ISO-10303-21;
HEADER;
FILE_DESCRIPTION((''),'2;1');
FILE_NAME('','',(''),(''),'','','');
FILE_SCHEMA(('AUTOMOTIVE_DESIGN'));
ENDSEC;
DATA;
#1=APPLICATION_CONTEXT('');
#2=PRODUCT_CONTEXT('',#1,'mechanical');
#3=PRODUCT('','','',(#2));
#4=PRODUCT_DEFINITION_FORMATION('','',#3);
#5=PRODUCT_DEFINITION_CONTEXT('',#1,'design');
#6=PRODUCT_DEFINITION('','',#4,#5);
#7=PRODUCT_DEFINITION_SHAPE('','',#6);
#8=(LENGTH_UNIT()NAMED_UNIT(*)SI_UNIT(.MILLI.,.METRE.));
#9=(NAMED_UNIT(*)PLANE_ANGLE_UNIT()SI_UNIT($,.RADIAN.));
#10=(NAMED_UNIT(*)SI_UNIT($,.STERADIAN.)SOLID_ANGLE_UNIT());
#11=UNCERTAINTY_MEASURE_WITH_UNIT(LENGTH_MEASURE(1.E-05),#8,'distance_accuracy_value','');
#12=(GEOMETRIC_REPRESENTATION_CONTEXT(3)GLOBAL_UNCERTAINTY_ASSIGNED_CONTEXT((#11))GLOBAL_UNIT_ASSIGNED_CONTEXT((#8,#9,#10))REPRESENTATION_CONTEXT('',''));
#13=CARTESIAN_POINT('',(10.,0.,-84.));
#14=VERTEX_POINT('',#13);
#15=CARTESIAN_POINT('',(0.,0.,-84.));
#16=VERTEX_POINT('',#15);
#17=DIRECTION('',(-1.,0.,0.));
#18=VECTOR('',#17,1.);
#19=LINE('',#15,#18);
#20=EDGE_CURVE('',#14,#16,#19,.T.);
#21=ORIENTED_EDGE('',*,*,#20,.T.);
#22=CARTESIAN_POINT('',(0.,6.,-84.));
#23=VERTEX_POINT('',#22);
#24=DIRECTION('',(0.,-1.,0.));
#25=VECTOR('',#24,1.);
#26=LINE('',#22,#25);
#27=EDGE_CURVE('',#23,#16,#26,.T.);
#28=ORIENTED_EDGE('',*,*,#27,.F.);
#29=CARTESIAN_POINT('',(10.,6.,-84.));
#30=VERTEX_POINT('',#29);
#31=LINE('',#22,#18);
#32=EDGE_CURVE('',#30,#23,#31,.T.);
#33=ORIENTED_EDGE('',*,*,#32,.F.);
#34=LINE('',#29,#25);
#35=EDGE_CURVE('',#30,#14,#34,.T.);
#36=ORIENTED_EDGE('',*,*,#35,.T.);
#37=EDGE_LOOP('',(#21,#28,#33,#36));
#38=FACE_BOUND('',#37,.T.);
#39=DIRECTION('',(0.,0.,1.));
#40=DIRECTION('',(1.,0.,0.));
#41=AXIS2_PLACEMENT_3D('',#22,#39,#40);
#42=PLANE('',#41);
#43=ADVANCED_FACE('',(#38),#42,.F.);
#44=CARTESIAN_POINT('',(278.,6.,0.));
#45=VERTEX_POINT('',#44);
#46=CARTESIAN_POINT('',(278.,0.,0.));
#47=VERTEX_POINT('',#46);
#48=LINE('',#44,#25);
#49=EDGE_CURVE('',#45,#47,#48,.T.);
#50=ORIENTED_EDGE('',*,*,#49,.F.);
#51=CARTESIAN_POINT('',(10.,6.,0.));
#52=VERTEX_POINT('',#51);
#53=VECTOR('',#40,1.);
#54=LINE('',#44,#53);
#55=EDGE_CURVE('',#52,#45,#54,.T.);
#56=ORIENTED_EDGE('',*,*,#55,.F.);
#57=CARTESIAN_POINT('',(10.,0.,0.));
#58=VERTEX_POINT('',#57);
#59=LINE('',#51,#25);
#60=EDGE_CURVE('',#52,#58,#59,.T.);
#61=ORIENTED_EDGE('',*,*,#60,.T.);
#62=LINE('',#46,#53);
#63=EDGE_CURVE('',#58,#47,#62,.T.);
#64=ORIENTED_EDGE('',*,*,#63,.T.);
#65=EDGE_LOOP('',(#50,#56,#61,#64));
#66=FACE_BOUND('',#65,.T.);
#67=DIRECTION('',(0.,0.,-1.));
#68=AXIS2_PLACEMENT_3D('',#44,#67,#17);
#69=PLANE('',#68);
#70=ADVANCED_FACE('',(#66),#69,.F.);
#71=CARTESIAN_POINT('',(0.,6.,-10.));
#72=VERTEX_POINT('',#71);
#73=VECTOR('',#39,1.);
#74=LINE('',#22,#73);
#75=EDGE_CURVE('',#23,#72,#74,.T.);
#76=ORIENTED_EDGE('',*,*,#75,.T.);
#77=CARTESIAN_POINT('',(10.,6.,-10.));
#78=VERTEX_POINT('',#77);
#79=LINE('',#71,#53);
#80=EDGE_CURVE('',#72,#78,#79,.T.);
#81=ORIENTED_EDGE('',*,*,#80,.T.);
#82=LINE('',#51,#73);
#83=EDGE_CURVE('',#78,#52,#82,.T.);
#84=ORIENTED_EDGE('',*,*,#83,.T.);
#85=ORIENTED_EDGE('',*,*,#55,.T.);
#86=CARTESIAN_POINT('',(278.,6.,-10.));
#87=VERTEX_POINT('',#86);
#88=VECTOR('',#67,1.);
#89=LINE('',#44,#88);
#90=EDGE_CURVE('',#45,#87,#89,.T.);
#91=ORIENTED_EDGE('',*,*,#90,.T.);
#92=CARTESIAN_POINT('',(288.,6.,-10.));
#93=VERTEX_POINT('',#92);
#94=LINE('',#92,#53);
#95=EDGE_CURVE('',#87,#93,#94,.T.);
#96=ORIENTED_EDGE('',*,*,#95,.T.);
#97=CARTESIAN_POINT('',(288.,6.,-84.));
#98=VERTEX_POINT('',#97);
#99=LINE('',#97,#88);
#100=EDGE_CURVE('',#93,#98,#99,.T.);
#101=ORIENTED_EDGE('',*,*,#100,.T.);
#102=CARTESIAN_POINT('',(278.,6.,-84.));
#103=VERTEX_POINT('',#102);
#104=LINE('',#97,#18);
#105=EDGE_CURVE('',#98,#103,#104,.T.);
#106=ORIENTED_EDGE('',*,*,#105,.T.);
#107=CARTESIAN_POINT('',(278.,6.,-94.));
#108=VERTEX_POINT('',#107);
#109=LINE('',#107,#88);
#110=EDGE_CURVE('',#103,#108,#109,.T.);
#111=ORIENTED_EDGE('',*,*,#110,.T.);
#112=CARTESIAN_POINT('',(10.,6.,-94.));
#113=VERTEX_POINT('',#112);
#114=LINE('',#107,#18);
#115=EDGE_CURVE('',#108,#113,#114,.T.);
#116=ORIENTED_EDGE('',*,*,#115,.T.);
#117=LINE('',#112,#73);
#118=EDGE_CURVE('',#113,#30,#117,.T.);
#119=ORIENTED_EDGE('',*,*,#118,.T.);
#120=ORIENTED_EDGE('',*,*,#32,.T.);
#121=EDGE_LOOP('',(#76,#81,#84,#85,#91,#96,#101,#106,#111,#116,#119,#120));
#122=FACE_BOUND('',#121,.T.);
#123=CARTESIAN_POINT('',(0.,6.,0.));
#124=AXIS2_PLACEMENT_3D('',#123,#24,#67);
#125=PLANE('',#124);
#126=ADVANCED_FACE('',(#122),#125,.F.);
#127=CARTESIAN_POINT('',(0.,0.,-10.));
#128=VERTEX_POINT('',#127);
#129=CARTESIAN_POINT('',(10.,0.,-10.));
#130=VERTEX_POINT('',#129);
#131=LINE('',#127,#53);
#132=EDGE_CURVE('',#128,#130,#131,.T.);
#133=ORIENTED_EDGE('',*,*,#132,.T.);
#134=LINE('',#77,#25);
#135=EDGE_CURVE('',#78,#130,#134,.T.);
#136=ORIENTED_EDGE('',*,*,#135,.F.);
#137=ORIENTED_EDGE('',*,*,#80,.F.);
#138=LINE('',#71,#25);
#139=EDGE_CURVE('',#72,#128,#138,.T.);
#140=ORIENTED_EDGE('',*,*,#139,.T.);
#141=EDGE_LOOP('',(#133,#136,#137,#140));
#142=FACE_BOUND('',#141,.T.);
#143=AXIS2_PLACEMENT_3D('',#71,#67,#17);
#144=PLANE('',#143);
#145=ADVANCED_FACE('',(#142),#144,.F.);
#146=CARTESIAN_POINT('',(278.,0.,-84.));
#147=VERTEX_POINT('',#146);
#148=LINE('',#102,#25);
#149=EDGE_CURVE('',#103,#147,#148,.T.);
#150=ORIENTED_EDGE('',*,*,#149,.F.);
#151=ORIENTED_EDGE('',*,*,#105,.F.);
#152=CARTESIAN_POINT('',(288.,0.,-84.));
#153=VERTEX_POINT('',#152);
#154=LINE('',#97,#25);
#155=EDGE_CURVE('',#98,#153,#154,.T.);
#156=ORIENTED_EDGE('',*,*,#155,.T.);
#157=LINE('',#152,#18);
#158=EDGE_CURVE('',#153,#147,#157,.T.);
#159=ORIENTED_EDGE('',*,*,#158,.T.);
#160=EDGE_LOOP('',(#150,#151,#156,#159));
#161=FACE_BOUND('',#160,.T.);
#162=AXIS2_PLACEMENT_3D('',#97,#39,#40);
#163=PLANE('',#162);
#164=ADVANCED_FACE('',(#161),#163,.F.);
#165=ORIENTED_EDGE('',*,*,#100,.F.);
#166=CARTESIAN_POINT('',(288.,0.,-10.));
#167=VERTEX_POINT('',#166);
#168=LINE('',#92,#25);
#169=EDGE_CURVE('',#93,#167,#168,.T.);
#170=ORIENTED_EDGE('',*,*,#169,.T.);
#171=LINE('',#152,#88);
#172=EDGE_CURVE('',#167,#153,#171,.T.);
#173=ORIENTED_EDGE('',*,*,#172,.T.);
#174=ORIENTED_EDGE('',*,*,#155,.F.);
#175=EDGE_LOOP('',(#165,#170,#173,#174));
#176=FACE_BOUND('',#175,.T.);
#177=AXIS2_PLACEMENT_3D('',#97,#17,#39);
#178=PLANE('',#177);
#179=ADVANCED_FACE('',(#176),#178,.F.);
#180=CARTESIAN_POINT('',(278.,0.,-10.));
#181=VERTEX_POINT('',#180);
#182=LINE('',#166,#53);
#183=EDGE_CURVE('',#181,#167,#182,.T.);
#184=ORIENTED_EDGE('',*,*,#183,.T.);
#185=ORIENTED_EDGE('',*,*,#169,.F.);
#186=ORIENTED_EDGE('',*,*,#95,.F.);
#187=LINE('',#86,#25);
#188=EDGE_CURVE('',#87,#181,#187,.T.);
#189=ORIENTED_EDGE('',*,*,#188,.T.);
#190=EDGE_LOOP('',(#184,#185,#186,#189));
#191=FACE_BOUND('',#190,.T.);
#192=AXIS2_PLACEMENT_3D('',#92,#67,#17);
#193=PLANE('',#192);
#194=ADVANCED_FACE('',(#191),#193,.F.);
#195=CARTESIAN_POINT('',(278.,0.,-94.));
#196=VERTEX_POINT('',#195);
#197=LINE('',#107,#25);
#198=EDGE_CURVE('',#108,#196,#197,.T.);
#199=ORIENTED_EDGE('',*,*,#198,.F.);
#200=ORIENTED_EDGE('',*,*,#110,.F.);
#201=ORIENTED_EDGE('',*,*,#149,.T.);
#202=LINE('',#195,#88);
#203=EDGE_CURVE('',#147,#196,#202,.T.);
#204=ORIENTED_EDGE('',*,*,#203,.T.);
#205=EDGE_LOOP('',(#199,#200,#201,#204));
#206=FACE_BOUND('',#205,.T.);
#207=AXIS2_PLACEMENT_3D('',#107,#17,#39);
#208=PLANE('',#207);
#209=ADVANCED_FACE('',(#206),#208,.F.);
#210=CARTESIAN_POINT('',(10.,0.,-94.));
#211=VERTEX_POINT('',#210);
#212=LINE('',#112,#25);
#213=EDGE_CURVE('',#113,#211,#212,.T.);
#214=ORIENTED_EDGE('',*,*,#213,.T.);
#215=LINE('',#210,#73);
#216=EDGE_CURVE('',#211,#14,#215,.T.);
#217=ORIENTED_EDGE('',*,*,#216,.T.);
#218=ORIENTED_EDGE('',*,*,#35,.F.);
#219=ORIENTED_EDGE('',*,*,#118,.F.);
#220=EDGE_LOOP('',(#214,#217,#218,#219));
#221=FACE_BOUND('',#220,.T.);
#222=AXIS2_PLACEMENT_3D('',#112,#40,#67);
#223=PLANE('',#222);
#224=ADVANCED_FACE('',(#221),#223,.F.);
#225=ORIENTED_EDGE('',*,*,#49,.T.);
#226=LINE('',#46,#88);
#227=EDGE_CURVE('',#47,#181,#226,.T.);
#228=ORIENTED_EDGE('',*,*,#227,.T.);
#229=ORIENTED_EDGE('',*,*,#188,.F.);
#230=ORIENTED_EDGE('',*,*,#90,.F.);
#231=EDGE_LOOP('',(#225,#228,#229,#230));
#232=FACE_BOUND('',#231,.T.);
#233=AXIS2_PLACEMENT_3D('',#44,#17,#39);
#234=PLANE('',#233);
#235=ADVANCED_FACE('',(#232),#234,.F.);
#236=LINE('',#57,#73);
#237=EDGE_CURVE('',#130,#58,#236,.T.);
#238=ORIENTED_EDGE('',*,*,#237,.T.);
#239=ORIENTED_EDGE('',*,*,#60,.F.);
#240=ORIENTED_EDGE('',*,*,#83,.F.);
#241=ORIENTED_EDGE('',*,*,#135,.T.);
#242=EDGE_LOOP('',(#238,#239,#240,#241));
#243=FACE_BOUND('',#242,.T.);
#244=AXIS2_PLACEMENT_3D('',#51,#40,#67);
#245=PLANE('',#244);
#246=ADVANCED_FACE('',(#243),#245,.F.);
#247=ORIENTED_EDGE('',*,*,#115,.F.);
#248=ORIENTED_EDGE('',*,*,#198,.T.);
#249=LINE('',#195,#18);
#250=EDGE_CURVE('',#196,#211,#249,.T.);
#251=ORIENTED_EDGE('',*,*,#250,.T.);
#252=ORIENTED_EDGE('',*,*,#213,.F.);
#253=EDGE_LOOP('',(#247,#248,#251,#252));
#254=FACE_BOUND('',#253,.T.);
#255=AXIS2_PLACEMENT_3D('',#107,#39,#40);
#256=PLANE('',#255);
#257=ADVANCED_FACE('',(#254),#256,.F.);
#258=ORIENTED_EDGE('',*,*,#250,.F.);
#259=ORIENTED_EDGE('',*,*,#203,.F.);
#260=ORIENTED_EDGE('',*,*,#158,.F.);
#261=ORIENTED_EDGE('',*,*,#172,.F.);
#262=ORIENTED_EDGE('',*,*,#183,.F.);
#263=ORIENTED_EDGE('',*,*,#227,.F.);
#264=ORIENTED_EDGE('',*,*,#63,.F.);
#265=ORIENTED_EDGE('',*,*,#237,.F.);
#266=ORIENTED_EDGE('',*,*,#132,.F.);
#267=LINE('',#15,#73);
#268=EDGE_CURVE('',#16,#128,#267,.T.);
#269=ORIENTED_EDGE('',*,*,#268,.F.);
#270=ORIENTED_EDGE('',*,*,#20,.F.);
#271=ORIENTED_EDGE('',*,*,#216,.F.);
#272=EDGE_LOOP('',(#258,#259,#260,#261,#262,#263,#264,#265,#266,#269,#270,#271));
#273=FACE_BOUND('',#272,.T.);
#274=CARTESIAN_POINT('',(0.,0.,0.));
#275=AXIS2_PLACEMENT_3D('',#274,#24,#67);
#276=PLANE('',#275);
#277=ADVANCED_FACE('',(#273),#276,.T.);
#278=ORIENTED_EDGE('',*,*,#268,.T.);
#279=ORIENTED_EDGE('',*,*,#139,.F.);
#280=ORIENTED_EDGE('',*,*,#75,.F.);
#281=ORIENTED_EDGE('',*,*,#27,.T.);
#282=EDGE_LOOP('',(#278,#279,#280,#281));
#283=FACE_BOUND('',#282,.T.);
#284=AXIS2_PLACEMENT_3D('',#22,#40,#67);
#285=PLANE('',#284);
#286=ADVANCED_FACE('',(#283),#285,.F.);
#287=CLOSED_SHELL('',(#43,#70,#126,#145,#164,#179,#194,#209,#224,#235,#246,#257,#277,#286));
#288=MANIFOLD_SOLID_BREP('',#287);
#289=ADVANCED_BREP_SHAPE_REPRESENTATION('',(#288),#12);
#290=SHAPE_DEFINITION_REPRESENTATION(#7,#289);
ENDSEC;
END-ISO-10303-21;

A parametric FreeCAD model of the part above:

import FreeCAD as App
import Part
import Sketcher

V = App.Vector


def add_polygon(sketch, points):
    """Adds a closed chain of lines whose ends are joined by coincident constraints."""
    first, n = sketch.GeometryCount, len(points)
    for a, b in zip(points, points[1:] + points[:1]):
        sketch.addGeometry(Part.LineSegment(App.Vector(*a, 0), App.Vector(*b, 0)), False)
    for i in range(n):
        sketch.addConstraint(Sketcher.Constraint("Coincident", first + i, 2, first + (i + 1) % n, 1))

doc = App.newDocument("Part")
body = doc.addObject("PartDesign::Body", "Body")

# Sketch on XZ plane
sketch1 = body.newObject("Sketcher::SketchObject", "Sketch")
sketch1.AttachmentSupport = (doc.getObject("XZ_Plane"), [""])
sketch1.MapMode = "FlatFace"
add_polygon(sketch1, [(0, -84), (0, -10), (10, -10), (10, 0), (278, 0), (278, -10), (288, -10), (288, -84), (278, -84), (278, -94), (10, -94), (10, -84)])  # lines 0-11
sketch1.addConstraint([
    Sketcher.Constraint("Vertical", 0),
    Sketcher.Constraint("Horizontal", 1),
    Sketcher.Constraint("Vertical", 2),
    Sketcher.Constraint("Horizontal", 3),
    Sketcher.Constraint("Vertical", 4),
    Sketcher.Constraint("Horizontal", 5),
    Sketcher.Constraint("Vertical", 6),
    Sketcher.Constraint("Horizontal", 7),
    Sketcher.Constraint("Vertical", 8),
    Sketcher.Constraint("Horizontal", 9),
    Sketcher.Constraint("Vertical", 10),
    Sketcher.Constraint("Horizontal", 11),
    Sketcher.Constraint("PointOnObject", 0, 2, -2),
    Sketcher.Constraint("PointOnObject", 2, 2, -1),
    Sketcher.Constraint("Horizontal", 1, 2, 4, 2),
    Sketcher.Constraint("Horizontal", 7, 2, 10, 2),
    Sketcher.Constraint("Vertical", 4, 2, 7, 2),
    Sketcher.Constraint("Vertical", 2, 2, 9, 2),
    Sketcher.Constraint("Equal", 1, 5),
    Sketcher.Constraint("Equal", 11, 2),
    Sketcher.Constraint("Equal", 4, 8),
    Sketcher.Constraint("DistanceX", 1, 1, 1, 2, 10.0),
    Sketcher.Constraint("DistanceX", 3, 1, 3, 2, 268.0),
    Sketcher.Constraint("DistanceY", 0, 1, 0, 2, 74.0),
])
pad1 = body.newObject("PartDesign::Pad", "Pad")
pad1.Profile = sketch1
pad1.Length = 6
pad1.Reversed = True

doc.recompute()
